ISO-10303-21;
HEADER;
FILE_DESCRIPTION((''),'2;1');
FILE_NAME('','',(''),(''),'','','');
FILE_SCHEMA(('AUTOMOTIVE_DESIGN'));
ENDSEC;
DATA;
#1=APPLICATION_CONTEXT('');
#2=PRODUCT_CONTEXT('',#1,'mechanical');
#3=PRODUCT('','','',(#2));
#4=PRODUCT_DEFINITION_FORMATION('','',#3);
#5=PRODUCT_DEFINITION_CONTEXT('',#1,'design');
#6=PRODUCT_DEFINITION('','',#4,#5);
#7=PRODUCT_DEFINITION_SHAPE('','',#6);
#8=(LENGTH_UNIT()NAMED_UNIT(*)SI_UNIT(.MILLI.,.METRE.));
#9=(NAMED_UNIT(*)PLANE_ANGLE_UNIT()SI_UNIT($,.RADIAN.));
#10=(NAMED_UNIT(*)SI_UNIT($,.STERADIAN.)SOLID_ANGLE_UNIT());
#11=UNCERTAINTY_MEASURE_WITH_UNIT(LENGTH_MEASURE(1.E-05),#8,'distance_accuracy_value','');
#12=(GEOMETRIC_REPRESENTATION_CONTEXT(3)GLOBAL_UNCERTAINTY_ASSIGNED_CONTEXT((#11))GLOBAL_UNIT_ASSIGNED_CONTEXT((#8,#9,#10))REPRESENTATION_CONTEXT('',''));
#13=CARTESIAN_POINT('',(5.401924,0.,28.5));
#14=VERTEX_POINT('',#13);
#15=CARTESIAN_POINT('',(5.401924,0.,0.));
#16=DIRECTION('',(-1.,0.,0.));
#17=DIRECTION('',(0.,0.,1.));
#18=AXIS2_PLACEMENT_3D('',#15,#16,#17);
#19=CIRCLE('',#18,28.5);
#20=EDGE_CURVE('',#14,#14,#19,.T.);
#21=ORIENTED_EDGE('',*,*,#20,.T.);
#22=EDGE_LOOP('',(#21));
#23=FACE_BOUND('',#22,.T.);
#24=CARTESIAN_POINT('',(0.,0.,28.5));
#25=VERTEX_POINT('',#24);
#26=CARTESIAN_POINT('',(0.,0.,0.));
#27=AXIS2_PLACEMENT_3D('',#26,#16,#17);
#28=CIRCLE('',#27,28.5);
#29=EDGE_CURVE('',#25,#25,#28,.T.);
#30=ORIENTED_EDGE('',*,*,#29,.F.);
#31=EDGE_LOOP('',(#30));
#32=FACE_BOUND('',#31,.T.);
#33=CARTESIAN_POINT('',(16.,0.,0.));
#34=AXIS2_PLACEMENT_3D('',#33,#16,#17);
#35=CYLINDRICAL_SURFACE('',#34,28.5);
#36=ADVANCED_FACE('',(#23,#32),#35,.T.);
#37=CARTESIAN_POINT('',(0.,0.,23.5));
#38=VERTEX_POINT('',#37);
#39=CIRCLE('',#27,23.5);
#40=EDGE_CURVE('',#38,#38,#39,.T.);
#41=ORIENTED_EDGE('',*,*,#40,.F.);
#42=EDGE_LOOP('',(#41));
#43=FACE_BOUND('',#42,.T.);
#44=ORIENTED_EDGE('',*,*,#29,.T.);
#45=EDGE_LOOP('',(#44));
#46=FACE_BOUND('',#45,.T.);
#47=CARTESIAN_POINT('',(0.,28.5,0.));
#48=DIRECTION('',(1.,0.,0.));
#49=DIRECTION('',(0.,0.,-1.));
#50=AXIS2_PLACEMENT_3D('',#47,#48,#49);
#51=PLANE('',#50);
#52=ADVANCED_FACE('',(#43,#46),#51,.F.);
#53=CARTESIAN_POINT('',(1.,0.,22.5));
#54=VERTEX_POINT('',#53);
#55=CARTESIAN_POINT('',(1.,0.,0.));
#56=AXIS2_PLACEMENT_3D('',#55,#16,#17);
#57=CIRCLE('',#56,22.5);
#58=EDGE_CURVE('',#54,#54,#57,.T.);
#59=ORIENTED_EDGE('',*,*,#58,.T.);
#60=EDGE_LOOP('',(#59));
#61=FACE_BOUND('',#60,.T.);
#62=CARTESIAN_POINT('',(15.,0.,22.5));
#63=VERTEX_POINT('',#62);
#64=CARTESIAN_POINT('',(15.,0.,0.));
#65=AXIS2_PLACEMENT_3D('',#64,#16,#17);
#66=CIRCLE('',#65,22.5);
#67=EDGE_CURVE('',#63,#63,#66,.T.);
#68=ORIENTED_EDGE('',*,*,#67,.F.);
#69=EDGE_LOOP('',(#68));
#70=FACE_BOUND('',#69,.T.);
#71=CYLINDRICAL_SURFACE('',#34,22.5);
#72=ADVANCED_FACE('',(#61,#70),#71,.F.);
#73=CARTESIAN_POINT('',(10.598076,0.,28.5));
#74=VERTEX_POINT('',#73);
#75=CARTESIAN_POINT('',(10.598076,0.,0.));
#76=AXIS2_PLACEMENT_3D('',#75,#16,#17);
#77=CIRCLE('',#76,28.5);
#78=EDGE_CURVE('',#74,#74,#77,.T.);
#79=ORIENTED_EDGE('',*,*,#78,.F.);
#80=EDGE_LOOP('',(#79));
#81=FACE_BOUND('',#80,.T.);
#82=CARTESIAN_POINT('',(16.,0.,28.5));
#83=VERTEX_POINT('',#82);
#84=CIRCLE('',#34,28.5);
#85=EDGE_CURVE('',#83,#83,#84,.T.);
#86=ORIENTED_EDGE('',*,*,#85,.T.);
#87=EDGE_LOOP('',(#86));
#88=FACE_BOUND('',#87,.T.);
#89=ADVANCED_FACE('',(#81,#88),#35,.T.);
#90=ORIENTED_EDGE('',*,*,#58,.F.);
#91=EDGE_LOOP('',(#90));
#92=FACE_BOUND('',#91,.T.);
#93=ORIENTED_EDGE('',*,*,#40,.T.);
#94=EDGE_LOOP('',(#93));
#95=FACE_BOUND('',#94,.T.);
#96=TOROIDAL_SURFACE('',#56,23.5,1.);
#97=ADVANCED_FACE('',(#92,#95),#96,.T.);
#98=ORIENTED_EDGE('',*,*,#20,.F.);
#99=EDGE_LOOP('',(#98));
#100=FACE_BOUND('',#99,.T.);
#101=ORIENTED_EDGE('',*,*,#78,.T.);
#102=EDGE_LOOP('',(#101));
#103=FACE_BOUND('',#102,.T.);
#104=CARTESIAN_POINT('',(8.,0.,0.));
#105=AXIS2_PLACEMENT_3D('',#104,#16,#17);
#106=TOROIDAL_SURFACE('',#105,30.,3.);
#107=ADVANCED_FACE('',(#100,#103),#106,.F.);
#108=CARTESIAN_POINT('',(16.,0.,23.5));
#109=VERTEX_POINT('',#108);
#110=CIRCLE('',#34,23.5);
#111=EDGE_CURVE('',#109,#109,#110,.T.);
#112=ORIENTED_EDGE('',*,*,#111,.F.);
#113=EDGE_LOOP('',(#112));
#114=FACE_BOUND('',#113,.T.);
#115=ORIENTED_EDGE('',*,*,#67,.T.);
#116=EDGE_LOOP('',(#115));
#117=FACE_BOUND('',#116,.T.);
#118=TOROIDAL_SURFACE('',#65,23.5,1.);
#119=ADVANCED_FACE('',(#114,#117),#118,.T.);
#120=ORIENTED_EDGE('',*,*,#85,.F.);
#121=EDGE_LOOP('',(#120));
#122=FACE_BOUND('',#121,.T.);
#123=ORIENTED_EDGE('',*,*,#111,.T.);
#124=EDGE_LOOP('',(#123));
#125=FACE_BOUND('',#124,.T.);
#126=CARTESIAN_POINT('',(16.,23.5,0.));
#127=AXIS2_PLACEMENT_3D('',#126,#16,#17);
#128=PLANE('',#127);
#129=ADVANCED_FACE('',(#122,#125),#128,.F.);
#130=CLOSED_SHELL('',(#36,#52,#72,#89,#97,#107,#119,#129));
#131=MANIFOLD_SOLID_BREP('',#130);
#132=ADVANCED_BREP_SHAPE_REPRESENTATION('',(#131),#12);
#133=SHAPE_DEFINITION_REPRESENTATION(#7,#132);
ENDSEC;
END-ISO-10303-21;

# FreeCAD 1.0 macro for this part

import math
import FreeCAD as App
import Part
import Sketcher
from FreeCAD import Vector
Q = App.Units.Quantity

doc = App.newDocument("Part")
params = doc.addObject("Spreadsheet::Sheet", "Params")
for row, (alias, value) in enumerate([
    ("sketch1_radius", "1 mm"),
    ("sketch1_radius2", "3 mm"),
    ("sketch1_width", "14 mm"),
    ("sketch1_height", "5 mm"),
    ("revolution_angle", "360 deg"),
], start=1):
    params.set(f"A{row}", alias)
    params.set(f"B{row}", "=" + value)
    params.setAlias(f"B{row}", alias)

body = doc.addObject("PartDesign::Body", "Body")

# Sketch on XY plane
sketch1 = body.newObject("Sketcher::SketchObject", "Sketch")
sketch1.AttachmentSupport = (doc.getObject("XY_Plane"), [""])
sketch1.MapMode = "FlatFace"
sketch1.addGeometry(Part.LineSegment(Vector(1, 22.5, 0), Vector(15, 22.5, 0)), False)
sketch1.addGeometry(Part.ArcOfCircle(Part.Circle(Vector(15, 23.5, 0), Vector(0, 0, 1), 1), math.radians(-90), math.radians(0)), False)
sketch1.addGeometry(Part.LineSegment(Vector(16, 23.5, 0), Vector(16, 28.5, 0)), False)
sketch1.addGeometry(Part.LineSegment(Vector(16, 28.5, 0), Vector(10.6, 28.5, 0)), False)
sketch1.addGeometry(Part.ArcOfCircle(Part.Circle(Vector(8, 30, 0), Vector(0, 0, 1), 3), math.radians(-150), math.radians(-30)), False)
sketch1.addGeometry(Part.LineSegment(Vector(5.4, 28.5, 0), Vector(0, 28.5, 0)), False)
sketch1.addGeometry(Part.LineSegment(Vector(0, 28.5, 0), Vector(0, 23.5, 0)), False)
sketch1.addGeometry(Part.ArcOfCircle(Part.Circle(Vector(1, 23.5, 0), Vector(0, 0, 1), 1), math.radians(-180), math.radians(-90)), False)
sketch1.addConstraint(Sketcher.Constraint("Tangent", 0, 2, 1, 1))
sketch1.addConstraint(Sketcher.Constraint("Tangent", 1, 2, 2, 1))
sketch1.addConstraint(Sketcher.Constraint("Coincident", 2, 2, 3, 1))
sketch1.addConstraint(Sketcher.Constraint("Coincident", 3, 2, 4, 2))
sketch1.addConstraint(Sketcher.Constraint("Coincident", 4, 1, 5, 1))
sketch1.addConstraint(Sketcher.Constraint("Coincident", 5, 2, 6, 1))
sketch1.addConstraint(Sketcher.Constraint("Tangent", 6, 2, 7, 1))
sketch1.addConstraint(Sketcher.Constraint("Tangent", 7, 2, 0, 1))
sketch1.addConstraint(Sketcher.Constraint("Horizontal", 0))
sketch1.addConstraint(Sketcher.Constraint("Vertical", 2))
sketch1.addConstraint(Sketcher.Constraint("Horizontal", 3))
sketch1.addConstraint(Sketcher.Constraint("Horizontal", 5))
sketch1.addConstraint(Sketcher.Constraint("Vertical", 6))
sketch1.addConstraint(Sketcher.Constraint("Equal", 1, 7))
sketch1.addConstraint(Sketcher.Constraint("PointOnObject", 5, 2, -2))
sketch1.addConstraint(Sketcher.Constraint("Horizontal", 3, 2, 4, 1))
sketch1.addConstraint(Sketcher.Constraint("Equal", 3, 5))
sketch1.addConstraint(Sketcher.Constraint("Radius", 1, Q("1 mm")))
sketch1.addConstraint(Sketcher.Constraint("Radius", 4, Q("3 mm")))
sketch1.addConstraint(Sketcher.Constraint("DistanceX", 0, 1, 0, 2, Q("14 mm")))
sketch1.addConstraint(Sketcher.Constraint("DistanceY", 2, 1, 2, 2, Q("5 mm")))
sketch1.addConstraint(Sketcher.Constraint("DistanceY", -1, 1, 4, 3, Q("30 mm")))
sketch1.addConstraint(Sketcher.Constraint("DistanceY", -1, 1, 1, 3, Q("23.5 mm")))
sketch1.setExpression("Constraints[17]", "Params.sketch1_radius")
sketch1.setExpression("Constraints[18]", "Params.sketch1_radius2")
sketch1.setExpression("Constraints[19]", "Params.sketch1_width")
sketch1.setExpression("Constraints[20]", "Params.sketch1_height")
revolution = body.newObject("PartDesign::Revolution", "Revolution")
revolution.Profile = sketch1
revolution.ReferenceAxis = (sketch1, ["H_Axis"])
revolution.setExpression("Angle", "Params.revolution_angle")

doc.recompute()
